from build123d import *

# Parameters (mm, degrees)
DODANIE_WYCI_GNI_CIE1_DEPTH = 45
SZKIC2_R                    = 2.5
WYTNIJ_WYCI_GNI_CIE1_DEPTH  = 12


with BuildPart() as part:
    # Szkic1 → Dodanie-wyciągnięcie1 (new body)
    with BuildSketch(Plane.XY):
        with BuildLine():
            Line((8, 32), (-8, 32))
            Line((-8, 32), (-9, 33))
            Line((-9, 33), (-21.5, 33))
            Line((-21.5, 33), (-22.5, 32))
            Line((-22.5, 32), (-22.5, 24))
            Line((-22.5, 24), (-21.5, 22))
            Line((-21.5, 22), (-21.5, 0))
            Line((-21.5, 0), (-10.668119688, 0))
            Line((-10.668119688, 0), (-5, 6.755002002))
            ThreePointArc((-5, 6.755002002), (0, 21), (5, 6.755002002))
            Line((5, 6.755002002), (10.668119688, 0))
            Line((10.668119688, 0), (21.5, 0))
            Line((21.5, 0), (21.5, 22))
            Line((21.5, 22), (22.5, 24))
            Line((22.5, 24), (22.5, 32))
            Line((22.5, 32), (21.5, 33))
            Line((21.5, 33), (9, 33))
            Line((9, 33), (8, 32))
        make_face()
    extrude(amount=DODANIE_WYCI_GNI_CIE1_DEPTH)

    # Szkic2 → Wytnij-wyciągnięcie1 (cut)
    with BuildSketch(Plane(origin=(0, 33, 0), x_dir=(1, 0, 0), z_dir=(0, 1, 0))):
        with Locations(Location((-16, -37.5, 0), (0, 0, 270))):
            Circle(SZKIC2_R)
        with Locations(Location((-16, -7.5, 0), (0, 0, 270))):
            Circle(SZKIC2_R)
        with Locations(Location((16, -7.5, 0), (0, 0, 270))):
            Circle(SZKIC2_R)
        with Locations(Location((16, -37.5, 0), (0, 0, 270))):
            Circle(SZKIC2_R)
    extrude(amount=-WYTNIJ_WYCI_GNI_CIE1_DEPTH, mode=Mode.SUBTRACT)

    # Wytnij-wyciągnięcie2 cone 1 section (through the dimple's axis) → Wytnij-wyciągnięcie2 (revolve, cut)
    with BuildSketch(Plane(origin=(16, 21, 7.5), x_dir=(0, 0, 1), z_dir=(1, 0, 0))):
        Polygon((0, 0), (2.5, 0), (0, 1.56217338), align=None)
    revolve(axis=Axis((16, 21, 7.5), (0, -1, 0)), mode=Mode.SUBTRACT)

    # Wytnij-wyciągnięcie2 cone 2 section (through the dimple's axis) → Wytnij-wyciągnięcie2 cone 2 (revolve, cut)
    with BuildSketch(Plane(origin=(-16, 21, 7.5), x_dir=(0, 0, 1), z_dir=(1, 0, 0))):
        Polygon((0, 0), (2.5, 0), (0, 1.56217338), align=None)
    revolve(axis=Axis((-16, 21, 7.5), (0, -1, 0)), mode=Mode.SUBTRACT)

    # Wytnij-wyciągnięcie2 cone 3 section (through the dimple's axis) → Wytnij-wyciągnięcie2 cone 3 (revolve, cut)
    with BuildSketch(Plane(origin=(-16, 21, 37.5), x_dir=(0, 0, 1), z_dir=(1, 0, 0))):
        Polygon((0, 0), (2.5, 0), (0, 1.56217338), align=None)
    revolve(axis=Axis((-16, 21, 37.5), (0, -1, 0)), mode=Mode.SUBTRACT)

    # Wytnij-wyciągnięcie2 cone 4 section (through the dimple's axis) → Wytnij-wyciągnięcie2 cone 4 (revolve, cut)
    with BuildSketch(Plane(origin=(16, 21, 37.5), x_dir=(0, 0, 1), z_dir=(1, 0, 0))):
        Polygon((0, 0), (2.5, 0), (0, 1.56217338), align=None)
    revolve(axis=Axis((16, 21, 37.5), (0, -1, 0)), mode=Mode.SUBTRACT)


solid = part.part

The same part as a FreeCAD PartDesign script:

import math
import FreeCAD as App
import Part
import Sketcher
Q = App.Units.Quantity

doc = App.newDocument("Part")
params = doc.addObject("Spreadsheet::Sheet", "Params")
for row, (alias, value) in enumerate([
    ("sketch1_radius", "8 mm"),
    ("sketch1_width", "16 mm"),
    ("sketch1_height", "8 mm"),
    ("sketch1_height2", "22 mm"),
    ("sketch1_width2", "12.5 mm"),
    ("pad1_length", "45 mm"),
    ("sketch2_diameter", "5 mm"),
    ("pocket1_length", "12 mm"),
    ("sketch3_height", "2.5 mm"),
    ("groove_angle", "360 deg"),
    ("sketch4_height", "2.5 mm"),
    ("groove2_angle", "360 deg"),
    ("sketch5_height", "2.5 mm"),
    ("groove3_angle", "360 deg"),
    ("sketch6_height", "2.5 mm"),
    ("groove4_angle", "360 deg"),
], start=1):
    params.set(f"A{row}", alias)
    params.set(f"B{row}", "=" + value)
    params.setAlias(f"B{row}", alias)

body = doc.addObject("PartDesign::Body", "Body")

# Sketch on XY plane
sketch1 = body.newObject("Sketcher::SketchObject", "Sketch")
sketch1.AttachmentSupport = (doc.getObject("XY_Plane"), [""])
sketch1.MapMode = "FlatFace"
sketch1.addGeometry(Part.LineSegment(App.Vector(8, 32, 0), App.Vector(-8, 32, 0)), False)
sketch1.addGeometry(Part.LineSegment(App.Vector(-8, 32, 0), App.Vector(-9, 33, 0)), False)
sketch1.addGeometry(Part.LineSegment(App.Vector(-9, 33, 0), App.Vector(-21.5, 33, 0)), False)
sketch1.addGeometry(Part.LineSegment(App.Vector(-21.5, 33, 0), App.Vector(-22.5, 32, 0)), False)
sketch1.addGeometry(Part.LineSegment(App.Vector(-22.5, 32, 0), App.Vector(-22.5, 24, 0)), False)
sketch1.addGeometry(Part.LineSegment(App.Vector(-22.5, 24, 0), App.Vector(-21.5, 22, 0)), False)
sketch1.addGeometry(Part.LineSegment(App.Vector(-21.5, 22, 0), App.Vector(-21.5, 0, 0)), False)
sketch1.addGeometry(Part.LineSegment(App.Vector(-21.5, 0, 0), App.Vector(-10.66812, 0, 0)), False)
sketch1.addGeometry(Part.LineSegment(App.Vector(-10.66812, 0, 0), App.Vector(-5, 6.755002, 0)), False)
sketch1.addGeometry(Part.ArcOfCircle(Part.Circle(App.Vector(0, 13, 0), App.Vector(0, 0, 1), 8), math.radians(-51.317813), math.radians(231.317813)), False)
sketch1.addGeometry(Part.LineSegment(App.Vector(5, 6.755002, 0), App.Vector(10.66812, 0, 0)), False)
sketch1.addGeometry(Part.LineSegment(App.Vector(10.66812, 0, 0), App.Vector(21.5, 0, 0)), False)
sketch1.addGeometry(Part.LineSegment(App.Vector(21.5, 0, 0), App.Vector(21.5, 22, 0)), False)
sketch1.addGeometry(Part.LineSegment(App.Vector(21.5, 22, 0), App.Vector(22.5, 24, 0)), False)
sketch1.addGeometry(Part.LineSegment(App.Vector(22.5, 24, 0), App.Vector(22.5, 32, 0)), False)
sketch1.addGeometry(Part.LineSegment(App.Vector(22.5, 32, 0), App.Vector(21.5, 33, 0)), False)
sketch1.addGeometry(Part.LineSegment(App.Vector(21.5, 33, 0), App.Vector(9, 33, 0)), False)
sketch1.addGeometry(Part.LineSegment(App.Vector(9, 33, 0), App.Vector(8, 32, 0)), False)
sketch1.addConstraint(Sketcher.Constraint("Coincident", 0, 2, 1, 1))
sketch1.addConstraint(Sketcher.Constraint("Coincident", 1, 2, 2, 1))
sketch1.addConstraint(Sketcher.Constraint("Coincident", 2, 2, 3, 1))
sketch1.addConstraint(Sketcher.Constraint("Coincident", 3, 2, 4, 1))
sketch1.addConstraint(Sketcher.Constraint("Coincident", 4, 2, 5, 1))
sketch1.addConstraint(Sketcher.Constraint("Coincident", 5, 2, 6, 1))
sketch1.addConstraint(Sketcher.Constraint("Coincident", 6, 2, 7, 1))
sketch1.addConstraint(Sketcher.Constraint("Coincident", 7, 2, 8, 1))
sketch1.addConstraint(Sketcher.Constraint("Coincident", 8, 2, 9, 2))
sketch1.addConstraint(Sketcher.Constraint("Coincident", 9, 1, 10, 1))
sketch1.addConstraint(Sketcher.Constraint("Coincident", 10, 2, 11, 1))
sketch1.addConstraint(Sketcher.Constraint("Coincident", 11, 2, 12, 1))
sketch1.addConstraint(Sketcher.Constraint("Coincident", 12, 2, 13, 1))
sketch1.addConstraint(Sketcher.Constraint("Coincident", 13, 2, 14, 1))
sketch1.addConstraint(Sketcher.Constraint("Coincident", 14, 2, 15, 1))
sketch1.addConstraint(Sketcher.Constraint("Coincident", 15, 2, 16, 1))
sketch1.addConstraint(Sketcher.Constraint("Coincident", 16, 2, 17, 1))
sketch1.addConstraint(Sketcher.Constraint("Coincident", 17, 2, 0, 1))
sketch1.addConstraint(Sketcher.Constraint("Horizontal", 0))
sketch1.addConstraint(Sketcher.Constraint("Horizontal", 2))
sketch1.addConstraint(Sketcher.Constraint("Vertical", 4))
sketch1.addConstraint(Sketcher.Constraint("Vertical", 6))
sketch1.addConstraint(Sketcher.Constraint("Horizontal", 7))
sketch1.addConstraint(Sketcher.Constraint("Horizontal", 11))
sketch1.addConstraint(Sketcher.Constraint("Vertical", 12))
sketch1.addConstraint(Sketcher.Constraint("Vertical", 14))
sketch1.addConstraint(Sketcher.Constraint("Horizontal", 16))
sketch1.addConstraint(Sketcher.Constraint("Symmetric", 7, 2, 10, 2, -1, 1))
sketch1.addConstraint(Sketcher.Constraint("Symmetric", 8, 2, 9, 1, -2))
sketch1.addConstraint(Sketcher.Constraint("Symmetric", 6, 2, 11, 2, -2))
sketch1.addConstraint(Sketcher.Constraint("Symmetric", 4, 2, 13, 2, -2))
sketch1.addConstraint(Sketcher.Constraint("Symmetric", 2, 2, 15, 2, -2))
sketch1.addConstraint(Sketcher.Constraint("Perpendicular", 1, 3))
sketch1.addConstraint(Sketcher.Constraint("Perpendicular", 3, 15))
sketch1.addConstraint(Sketcher.Constraint("Perpendicular", 15, 17))
sketch1.addConstraint(Sketcher.Constraint("Horizontal", 0, 2, 3, 2))
sketch1.addConstraint(Sketcher.Constraint("Horizontal", 5, 2, 12, 2))
sketch1.addConstraint(Sketcher.Constraint("Horizontal", 3, 2, 14, 2))
sketch1.addConstraint(Sketcher.Constraint("Vertical", 2, 2, 5, 2))
sketch1.addConstraint(Sketcher.Constraint("Equal", 2, 16))
sketch1.addConstraint(Sketcher.Constraint("Radius", 9, Q("8 mm")))
sketch1.addConstraint(Sketcher.Constraint("DistanceX", 0, 2, 0, 1, Q("16 mm")))
sketch1.addConstraint(Sketcher.Constraint("DistanceY", 4, 2, 4, 1, Q("8 mm")))
sketch1.addConstraint(Sketcher.Constraint("DistanceY", 6, 2, 6, 1, Q("22 mm")))
sketch1.addConstraint(Sketcher.Constraint("Angle", 8, Q("50 deg")))
sketch1.addConstraint(Sketcher.Constraint("DistanceX", 2, 2, 2, 1, Q("12.5 mm")))
sketch1.addConstraint(Sketcher.Constraint("DistanceY", -1, 1, 9, 3, Q("13 mm")))
sketch1.addConstraint(Sketcher.Constraint("DistanceY", -1, 1, 0, 2, Q("32 mm")))
sketch1.addConstraint(Sketcher.Constraint("DistanceX", 1, 2, -1, 1, Q("9 mm")))
sketch1.addConstraint(Sketcher.Constraint("DistanceX", 8, 2, -1, 1, Q("5 mm")))
sketch1.setExpression("Constraints[40]", "Params.sketch1_radius")
sketch1.setExpression("Constraints[41]", "Params.sketch1_width")
sketch1.setExpression("Constraints[42]", "Params.sketch1_height")
sketch1.setExpression("Constraints[43]", "Params.sketch1_height2")
sketch1.setExpression("Constraints[45]", "Params.sketch1_width2")
pad1 = body.newObject("PartDesign::Pad", "Pad")
pad1.Profile = sketch1
pad1.setExpression("Length", "Params.pad1_length")

# Sketch on XZ plane
sketch2 = body.newObject("Sketcher::SketchObject", "Sketch001")
sketch2.AttachmentSupport = (doc.getObject("XZ_Plane"), [""])
sketch2.MapMode = "FlatFace"
sketch2.AttachmentOffset = App.Placement(App.Vector(0, 0, -33), App.Rotation())
sketch2.addGeometry(Part.Circle(App.Vector(-16, 37.5, 0), App.Vector(0, 0, 1), 2.5), False)
sketch2.addGeometry(Part.Circle(App.Vector(-16, 7.5, 0), App.Vector(0, 0, 1), 2.5), False)
sketch2.addGeometry(Part.Circle(App.Vector(16, 7.5, 0), App.Vector(0, 0, 1), 2.5), False)
sketch2.addGeometry(Part.Circle(App.Vector(16, 37.5, 0), App.Vector(0, 0, 1), 2.5), False)
sketch2.addConstraint(Sketcher.Constraint("Equal", 0, 1))
sketch2.addConstraint(Sketcher.Constraint("Equal", 1, 2))
sketch2.addConstraint(Sketcher.Constraint("Equal", 2, 3))
sketch2.addConstraint(Sketcher.Constraint("Symmetric", 1, 3, 2, 3, -2))
sketch2.addConstraint(Sketcher.Constraint("Symmetric", 0, 3, 3, 3, -2))
sketch2.addConstraint(Sketcher.Constraint("Vertical", 0, 3, 1, 3))
sketch2.addConstraint(Sketcher.Constraint("Diameter", 0, Q("5 mm")))
sketch2.addConstraint(Sketcher.Constraint("DistanceX", 0, 3, -1, 1, Q("16 mm")))
sketch2.addConstraint(Sketcher.Constraint("DistanceY", 1, 3, 0, 3, Q("30 mm")))
sketch2.addConstraint(Sketcher.Constraint("DistanceY", -1, 1, 0, 3, Q("37.5 mm")))
sketch2.setExpression("Constraints[6]", "Params.sketch2_diameter")
pocket1 = body.newObject("PartDesign::Pocket", "Pocket")
pocket1.Profile = sketch2
pocket1.setExpression("Length", "Params.pocket1_length")
pocket1.Reversed = True

# Sketch on YZ plane
sketch3 = body.newObject("Sketcher::SketchObject", "Sketch002")
sketch3.AttachmentSupport = (doc.getObject("YZ_Plane"), [""])
sketch3.MapMode = "FlatFace"
sketch3.AttachmentOffset = App.Placement(App.Vector(0, 0, 16), App.Rotation())
sketch3.addGeometry(Part.LineSegment(App.Vector(21, 7.5, 0), App.Vector(21, 10, 0)), False)
sketch3.addGeometry(Part.LineSegment(App.Vector(21, 10, 0), App.Vector(19.437827, 7.5, 0)), False)
sketch3.addGeometry(Part.LineSegment(App.Vector(19.437827, 7.5, 0), App.Vector(21, 7.5, 0)), False)
sketch3.addGeometry(Part.LineSegment(App.Vector(21, 7.5, 0), App.Vector(19.437827, 7.5, 0)), True)  # axis
sketch3.addConstraint(Sketcher.Constraint("Coincident", 0, 2, 1, 1))
sketch3.addConstraint(Sketcher.Constraint("Coincident", 1, 2, 2, 1))
sketch3.addConstraint(Sketcher.Constraint("Coincident", 2, 2, 0, 1))
sketch3.addConstraint(Sketcher.Constraint("Vertical", 0))
sketch3.addConstraint(Sketcher.Constraint("Horizontal", 2))
sketch3.addConstraint(Sketcher.Constraint("Horizontal", 3))
sketch3.addConstraint(Sketcher.Constraint("Coincident", 3, 1, 2, 2))
sketch3.addConstraint(Sketcher.Constraint("Equal", 2, 3))
sketch3.addConstraint(Sketcher.Constraint("Angle", 1, Q("-122 deg")))
sketch3.addConstraint(Sketcher.Constraint("DistanceY", 0, 1, 0, 2, Q("2.5 mm")))
sketch3.addConstraint(Sketcher.Constraint("DistanceX", -1, 1, 0, 2, Q("21 mm")))
sketch3.addConstraint(Sketcher.Constraint("DistanceY", -1, 1, 0, 2, Q("10 mm")))
sketch3.setExpression("Constraints[9]", "Params.sketch3_height")
groove = body.newObject("PartDesign::Groove", "Groove")
groove.Profile = sketch3
groove.ReferenceAxis = (sketch3, ["Axis0"])
groove.setExpression("Angle", "Params.groove_angle")

# Sketch on YZ plane
sketch4 = body.newObject("Sketcher::SketchObject", "Sketch003")
sketch4.AttachmentSupport = (doc.getObject("YZ_Plane"), [""])
sketch4.MapMode = "FlatFace"
sketch4.AttachmentOffset = App.Placement(App.Vector(0, 0, -16), App.Rotation())
sketch4.addGeometry(Part.LineSegment(App.Vector(21, 7.5, 0), App.Vector(21, 10, 0)), False)
sketch4.addGeometry(Part.LineSegment(App.Vector(21, 10, 0), App.Vector(19.437827, 7.5, 0)), False)
sketch4.addGeometry(Part.LineSegment(App.Vector(19.437827, 7.5, 0), App.Vector(21, 7.5, 0)), False)
sketch4.addGeometry(Part.LineSegment(App.Vector(21, 7.5, 0), App.Vector(19.437827, 7.5, 0)), True)  # axis
sketch4.addConstraint(Sketcher.Constraint("Coincident", 0, 2, 1, 1))
sketch4.addConstraint(Sketcher.Constraint("Coincident", 1, 2, 2, 1))
sketch4.addConstraint(Sketcher.Constraint("Coincident", 2, 2, 0, 1))
sketch4.addConstraint(Sketcher.Constraint("Vertical", 0))
sketch4.addConstraint(Sketcher.Constraint("Horizontal", 2))
sketch4.addConstraint(Sketcher.Constraint("Horizontal", 3))
sketch4.addConstraint(Sketcher.Constraint("Coincident", 3, 1, 2, 2))
sketch4.addConstraint(Sketcher.Constraint("Equal", 2, 3))
sketch4.addConstraint(Sketcher.Constraint("Angle", 1, Q("-122 deg")))
sketch4.addConstraint(Sketcher.Constraint("DistanceY", 0, 1, 0, 2, Q("2.5 mm")))
sketch4.addConstraint(Sketcher.Constraint("DistanceX", -1, 1, 0, 2, Q("21 mm")))
sketch4.addConstraint(Sketcher.Constraint("DistanceY", -1, 1, 0, 2, Q("10 mm")))
sketch4.setExpression("Constraints[9]", "Params.sketch4_height")
groove2 = body.newObject("PartDesign::Groove", "Groove001")
groove2.Profile = sketch4
groove2.ReferenceAxis = (sketch4, ["Axis0"])
groove2.setExpression("Angle", "Params.groove2_angle")

# Sketch on YZ plane
sketch5 = body.newObject("Sketcher::SketchObject", "Sketch004")
sketch5.AttachmentSupport = (doc.getObject("YZ_Plane"), [""])
sketch5.MapMode = "FlatFace"
sketch5.AttachmentOffset = App.Placement(App.Vector(0, 0, -16), App.Rotation())
sketch5.addGeometry(Part.LineSegment(App.Vector(21, 37.5, 0), App.Vector(21, 40, 0)), False)
sketch5.addGeometry(Part.LineSegment(App.Vector(21, 40, 0), App.Vector(19.437827, 37.5, 0)), False)
sketch5.addGeometry(Part.LineSegment(App.Vector(19.437827, 37.5, 0), App.Vector(21, 37.5, 0)), False)
sketch5.addGeometry(Part.LineSegment(App.Vector(21, 37.5, 0), App.Vector(19.437827, 37.5, 0)), True)  # axis
sketch5.addConstraint(Sketcher.Constraint("Coincident", 0, 2, 1, 1))
sketch5.addConstraint(Sketcher.Constraint("Coincident", 1, 2, 2, 1))
sketch5.addConstraint(Sketcher.Constraint("Coincident", 2, 2, 0, 1))
sketch5.addConstraint(Sketcher.Constraint("Vertical", 0))
sketch5.addConstraint(Sketcher.Constraint("Horizontal", 2))
sketch5.addConstraint(Sketcher.Constraint("Horizontal", 3))
sketch5.addConstraint(Sketcher.Constraint("Coincident", 3, 1, 2, 2))
sketch5.addConstraint(Sketcher.Constraint("Equal", 2, 3))
sketch5.addConstraint(Sketcher.Constraint("Angle", 1, Q("-122 deg")))
sketch5.addConstraint(Sketcher.Constraint("DistanceY", 0, 1, 0, 2, Q("2.5 mm")))
sketch5.addConstraint(Sketcher.Constraint("DistanceX", -1, 1, 0, 2, Q("21 mm")))
sketch5.addConstraint(Sketcher.Constraint("DistanceY", -1, 1, 0, 2, Q("40 mm")))
sketch5.setExpression("Constraints[9]", "Params.sketch5_height")
groove3 = body.newObject("PartDesign::Groove", "Groove002")
groove3.Profile = sketch5
groove3.ReferenceAxis = (sketch5, ["Axis0"])
groove3.setExpression("Angle", "Params.groove3_angle")

# Sketch on YZ plane
sketch6 = body.newObject("Sketcher::SketchObject", "Sketch005")
sketch6.AttachmentSupport = (doc.getObject("YZ_Plane"), [""])
sketch6.MapMode = "FlatFace"
sketch6.AttachmentOffset = App.Placement(App.Vector(0, 0, 16), App.Rotation())
sketch6.addGeometry(Part.LineSegment(App.Vector(21, 37.5, 0), App.Vector(21, 40, 0)), False)
sketch6.addGeometry(Part.LineSegment(App.Vector(21, 40, 0), App.Vector(19.437827, 37.5, 0)), False)
sketch6.addGeometry(Part.LineSegment(App.Vector(19.437827, 37.5, 0), App.Vector(21, 37.5, 0)), False)
sketch6.addGeometry(Part.LineSegment(App.Vector(21, 37.5, 0), App.Vector(19.437827, 37.5, 0)), True)  # axis
sketch6.addConstraint(Sketcher.Constraint("Coincident", 0, 2, 1, 1))
sketch6.addConstraint(Sketcher.Constraint("Coincident", 1, 2, 2, 1))
sketch6.addConstraint(Sketcher.Constraint("Coincident", 2, 2, 0, 1))
sketch6.addConstraint(Sketcher.Constraint("Vertical", 0))
sketch6.addConstraint(Sketcher.Constraint("Horizontal", 2))
sketch6.addConstraint(Sketcher.Constraint("Horizontal", 3))
sketch6.addConstraint(Sketcher.Constraint("Coincident", 3, 1, 2, 2))
sketch6.addConstraint(Sketcher.Constraint("Equal", 2, 3))
sketch6.addConstraint(Sketcher.Constraint("Angle", 1, Q("-122 deg")))
sketch6.addConstraint(Sketcher.Constraint("DistanceY", 0, 1, 0, 2, Q("2.5 mm")))
sketch6.addConstraint(Sketcher.Constraint("DistanceX", -1, 1, 0, 2, Q("21 mm")))
sketch6.addConstraint(Sketcher.Constraint("DistanceY", -1, 1, 0, 2, Q("40 mm")))
sketch6.setExpression("Constraints[9]", "Params.sketch6_height")
groove4 = body.newObject("PartDesign::Groove", "Groove003")
groove4.Profile = sketch6
groove4.ReferenceAxis = (sketch6, ["Axis0"])
groove4.setExpression("Angle", "Params.groove4_angle")

doc.recompute()
